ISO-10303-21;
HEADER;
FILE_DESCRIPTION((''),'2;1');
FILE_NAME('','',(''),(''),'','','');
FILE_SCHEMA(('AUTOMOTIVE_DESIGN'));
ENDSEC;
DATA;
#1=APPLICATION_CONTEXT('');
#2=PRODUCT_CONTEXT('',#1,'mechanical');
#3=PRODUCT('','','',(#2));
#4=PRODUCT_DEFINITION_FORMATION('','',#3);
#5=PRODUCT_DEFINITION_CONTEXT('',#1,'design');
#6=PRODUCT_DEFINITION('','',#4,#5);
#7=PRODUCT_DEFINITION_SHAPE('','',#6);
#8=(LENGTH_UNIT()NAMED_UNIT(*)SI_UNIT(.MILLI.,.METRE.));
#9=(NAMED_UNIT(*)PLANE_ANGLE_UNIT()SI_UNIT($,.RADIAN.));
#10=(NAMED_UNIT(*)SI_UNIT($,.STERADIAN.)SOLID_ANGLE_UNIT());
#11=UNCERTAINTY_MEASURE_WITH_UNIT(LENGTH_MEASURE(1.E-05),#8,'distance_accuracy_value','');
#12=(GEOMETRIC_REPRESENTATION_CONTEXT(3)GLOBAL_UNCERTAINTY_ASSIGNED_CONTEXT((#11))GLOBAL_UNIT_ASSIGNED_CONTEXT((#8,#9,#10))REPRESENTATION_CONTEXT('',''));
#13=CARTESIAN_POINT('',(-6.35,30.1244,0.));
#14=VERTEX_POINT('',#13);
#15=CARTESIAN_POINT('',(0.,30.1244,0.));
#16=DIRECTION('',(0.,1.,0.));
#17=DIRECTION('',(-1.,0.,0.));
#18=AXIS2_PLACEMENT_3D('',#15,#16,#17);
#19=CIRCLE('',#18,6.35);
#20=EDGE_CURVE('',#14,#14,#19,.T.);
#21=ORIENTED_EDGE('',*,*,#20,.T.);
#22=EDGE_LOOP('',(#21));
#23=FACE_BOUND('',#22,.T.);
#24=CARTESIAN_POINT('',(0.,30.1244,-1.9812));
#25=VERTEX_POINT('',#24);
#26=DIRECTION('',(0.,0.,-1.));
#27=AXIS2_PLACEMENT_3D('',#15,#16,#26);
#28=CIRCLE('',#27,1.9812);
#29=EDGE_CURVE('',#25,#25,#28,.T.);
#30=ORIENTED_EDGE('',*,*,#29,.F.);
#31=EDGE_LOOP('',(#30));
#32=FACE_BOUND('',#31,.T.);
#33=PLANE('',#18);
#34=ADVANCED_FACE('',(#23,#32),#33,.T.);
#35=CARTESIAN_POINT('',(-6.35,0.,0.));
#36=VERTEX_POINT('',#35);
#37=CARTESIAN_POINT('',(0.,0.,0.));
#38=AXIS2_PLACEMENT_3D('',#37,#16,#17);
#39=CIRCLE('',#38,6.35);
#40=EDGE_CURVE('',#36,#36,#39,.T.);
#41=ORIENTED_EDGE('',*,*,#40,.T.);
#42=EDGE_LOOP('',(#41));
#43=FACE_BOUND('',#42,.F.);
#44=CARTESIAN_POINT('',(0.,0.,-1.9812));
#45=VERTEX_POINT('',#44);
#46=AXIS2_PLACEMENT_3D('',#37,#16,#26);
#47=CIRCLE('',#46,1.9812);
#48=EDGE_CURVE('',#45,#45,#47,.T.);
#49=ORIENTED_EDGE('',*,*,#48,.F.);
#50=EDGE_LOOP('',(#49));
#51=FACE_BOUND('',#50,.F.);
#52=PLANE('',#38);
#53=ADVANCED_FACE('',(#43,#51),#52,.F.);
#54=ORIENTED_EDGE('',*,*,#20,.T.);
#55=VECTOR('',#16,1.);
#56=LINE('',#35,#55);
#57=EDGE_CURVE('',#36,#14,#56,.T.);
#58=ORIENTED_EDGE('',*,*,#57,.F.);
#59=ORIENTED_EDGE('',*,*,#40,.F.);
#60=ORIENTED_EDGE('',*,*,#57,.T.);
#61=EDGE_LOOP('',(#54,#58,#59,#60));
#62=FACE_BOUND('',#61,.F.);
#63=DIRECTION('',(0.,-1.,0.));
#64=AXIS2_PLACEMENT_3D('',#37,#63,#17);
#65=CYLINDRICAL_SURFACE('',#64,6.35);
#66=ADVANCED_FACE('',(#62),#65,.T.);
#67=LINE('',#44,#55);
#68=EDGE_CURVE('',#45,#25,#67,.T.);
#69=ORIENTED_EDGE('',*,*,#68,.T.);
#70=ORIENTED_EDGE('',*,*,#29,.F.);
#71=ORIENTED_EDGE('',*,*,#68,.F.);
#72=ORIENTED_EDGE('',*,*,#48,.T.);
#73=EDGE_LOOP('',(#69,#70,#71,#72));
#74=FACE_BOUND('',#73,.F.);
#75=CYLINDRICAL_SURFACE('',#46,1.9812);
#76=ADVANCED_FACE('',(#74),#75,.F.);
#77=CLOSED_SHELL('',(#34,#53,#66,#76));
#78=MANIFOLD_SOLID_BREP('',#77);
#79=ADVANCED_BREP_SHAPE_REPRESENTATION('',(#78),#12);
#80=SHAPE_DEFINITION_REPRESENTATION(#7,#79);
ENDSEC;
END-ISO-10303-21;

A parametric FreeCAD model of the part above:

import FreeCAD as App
import Part
import Sketcher
from FreeCAD import Vector
Q = App.Units.Quantity

doc = App.newDocument("Part")
body = doc.addObject("PartDesign::Body", "Body")

# Sketch on XZ plane
sketch1 = doc.addObject("Sketcher::SketchObject", "Sketch")
body.addObject(sketch1)
sketch1.AttachmentSupport = (doc.XZ_Plane, [""])
sketch1.MapMode = "FlatFace"
sketch1.addGeometry(Part.Circle(Vector(0, 0, 0), Vector(0, 0, 1), 6.35), False)
sketch1.addConstraint([
    Sketcher.Constraint("Coincident", 0, 3, -1, 1),
    Sketcher.Constraint("Diameter", 0, Q("0.5 in")),
])
pad1 = doc.addObject("PartDesign::Pad", "Pad")
body.addObject(pad1)
pad1.Profile = sketch1
pad1.Length = Q("1.186 in")
pad1.Reversed = True

# Sketch on XZ plane
sketch2 = doc.addObject("Sketcher::SketchObject", "Sketch001")
body.addObject(sketch2)
sketch2.AttachmentSupport = (doc.XZ_Plane, [""])
sketch2.MapMode = "FlatFace"
sketch2.addGeometry(Part.Circle(Vector(0, 0, 0), Vector(0, 0, 1), 1.9812), False)
sketch2.addConstraint([
    Sketcher.Constraint("Coincident", 0, 3, -1, 1),
    Sketcher.Constraint("Diameter", 0, Q("0.156 in")),
])
doc.recompute()
hole = doc.addObject("PartDesign::Hole", "Hole")
body.addObject(hole)
hole.Profile = sketch2
hole.ThreadType = "None"
hole.Diameter = Q("0.156 in")
hole.DepthType = "ThroughAll"

doc.recompute()
